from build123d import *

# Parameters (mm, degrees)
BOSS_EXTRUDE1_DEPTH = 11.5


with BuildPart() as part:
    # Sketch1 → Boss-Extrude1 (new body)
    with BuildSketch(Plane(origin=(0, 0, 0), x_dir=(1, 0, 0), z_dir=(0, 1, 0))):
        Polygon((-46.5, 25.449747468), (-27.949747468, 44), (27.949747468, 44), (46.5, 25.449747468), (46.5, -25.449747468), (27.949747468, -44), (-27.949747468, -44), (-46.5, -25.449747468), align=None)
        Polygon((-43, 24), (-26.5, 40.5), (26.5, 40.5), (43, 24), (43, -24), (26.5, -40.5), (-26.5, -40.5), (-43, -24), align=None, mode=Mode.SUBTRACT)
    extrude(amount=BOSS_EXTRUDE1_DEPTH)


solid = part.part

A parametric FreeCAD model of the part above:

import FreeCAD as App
import Part
import Sketcher

V = App.Vector


def add_polygon(sketch, points):
    """Adds a closed chain of lines whose ends are joined by coincident constraints."""
    first, n = sketch.GeometryCount, len(points)
    for a, b in zip(points, points[1:] + points[:1]):
        sketch.addGeometry(Part.LineSegment(App.Vector(*a, 0), App.Vector(*b, 0)), False)
    for i in range(n):
        sketch.addConstraint(Sketcher.Constraint("Coincident", first + i, 2, first + (i + 1) % n, 1))

doc = App.newDocument("Part")
params = doc.addObject("Spreadsheet::Sheet", "Params")
for row, (alias, value) in enumerate([
    ("sketch1_width", "53 mm"),
    ("sketch1_height", "48 mm"),
    ("pad1_length", "11.5 mm"),
], start=1):
    params.set(f"A{row}", alias)
    params.set(f"B{row}", "=" + value)
    params.setAlias(f"B{row}", alias)

body = doc.addObject("PartDesign::Body", "Body")

# Sketch on XZ plane
sketch1 = body.newObject("Sketcher::SketchObject", "Sketch")
sketch1.AttachmentSupport = (doc.getObject("XZ_Plane"), [""])
sketch1.MapMode = "FlatFace"
add_polygon(sketch1, [(-28, -44), (-46, -25), (-46, 25), (-28, 44), (28, 44), (46, 25), (46, -25), (28, -44)])  # lines 0-7
add_polygon(sketch1, [(-43, -24), (-26, -40), (26, -40), (43, -24), (43, 24), (26, 40), (-26, 40), (-43, 24)])  # lines 8-15
sketch1.addConstraint([
    Sketcher.Constraint("Vertical", 1),
    Sketcher.Constraint("Horizontal", 3),
    Sketcher.Constraint("Vertical", 5),
    Sketcher.Constraint("Horizontal", 7),
    Sketcher.Constraint("Horizontal", 9),
    Sketcher.Constraint("Vertical", 11),
    Sketcher.Constraint("Horizontal", 13),
    Sketcher.Constraint("Vertical", 15),
    Sketcher.Constraint("Symmetric", 0, 2, 4, 2, -1, 1),
    Sketcher.Constraint("Symmetric", 2, 2, 6, 2, -1, 1),
    Sketcher.Constraint("Symmetric", 8, 2, 12, 2, -1, 1),
    Sketcher.Constraint("Symmetric", 10, 2, 14, 2, -1, 1),
    Sketcher.Constraint("Perpendicular", 0, 2),
    Sketcher.Constraint("Perpendicular", 2, 4),
    Sketcher.Constraint("Perpendicular", 4, 6),
    Sketcher.Constraint("Perpendicular", 6, 8),
    Sketcher.Constraint("Perpendicular", 8, 10),
    Sketcher.Constraint("Perpendicular", 10, 12),
    Sketcher.Constraint("Perpendicular", 12, 14),
    Sketcher.Constraint("Horizontal", 1, 2, 4, 2),
    Sketcher.Constraint("Horizontal", 11, 2, 14, 2),
    Sketcher.Constraint("Vertical", 3, 2, 6, 2),
    Sketcher.Constraint("DistanceX", 9, 1, 9, 2, 53.0),
    Sketcher.Constraint("DistanceY", 11, 1, 11, 2, 48.0),
    Sketcher.Constraint("DistanceY", -1, 1, 2, 2, 44.0),
    Sketcher.Constraint("DistanceX", -1, 1, 10, 2, 43.0),
    Sketcher.Constraint("DistanceX", 1, 2, 4, 2, 93.0),
    Sketcher.Constraint("Distance", 0, 26.234019),
])
sketch1.setExpression("Constraints[38]", "Params.sketch1_width")
sketch1.setExpression("Constraints[39]", "Params.sketch1_height")
pad1 = body.newObject("PartDesign::Pad", "Pad")
pad1.Profile = sketch1
pad1.setExpression("Length", "Params.pad1_length")
pad1.Reversed = True

doc.recompute()
